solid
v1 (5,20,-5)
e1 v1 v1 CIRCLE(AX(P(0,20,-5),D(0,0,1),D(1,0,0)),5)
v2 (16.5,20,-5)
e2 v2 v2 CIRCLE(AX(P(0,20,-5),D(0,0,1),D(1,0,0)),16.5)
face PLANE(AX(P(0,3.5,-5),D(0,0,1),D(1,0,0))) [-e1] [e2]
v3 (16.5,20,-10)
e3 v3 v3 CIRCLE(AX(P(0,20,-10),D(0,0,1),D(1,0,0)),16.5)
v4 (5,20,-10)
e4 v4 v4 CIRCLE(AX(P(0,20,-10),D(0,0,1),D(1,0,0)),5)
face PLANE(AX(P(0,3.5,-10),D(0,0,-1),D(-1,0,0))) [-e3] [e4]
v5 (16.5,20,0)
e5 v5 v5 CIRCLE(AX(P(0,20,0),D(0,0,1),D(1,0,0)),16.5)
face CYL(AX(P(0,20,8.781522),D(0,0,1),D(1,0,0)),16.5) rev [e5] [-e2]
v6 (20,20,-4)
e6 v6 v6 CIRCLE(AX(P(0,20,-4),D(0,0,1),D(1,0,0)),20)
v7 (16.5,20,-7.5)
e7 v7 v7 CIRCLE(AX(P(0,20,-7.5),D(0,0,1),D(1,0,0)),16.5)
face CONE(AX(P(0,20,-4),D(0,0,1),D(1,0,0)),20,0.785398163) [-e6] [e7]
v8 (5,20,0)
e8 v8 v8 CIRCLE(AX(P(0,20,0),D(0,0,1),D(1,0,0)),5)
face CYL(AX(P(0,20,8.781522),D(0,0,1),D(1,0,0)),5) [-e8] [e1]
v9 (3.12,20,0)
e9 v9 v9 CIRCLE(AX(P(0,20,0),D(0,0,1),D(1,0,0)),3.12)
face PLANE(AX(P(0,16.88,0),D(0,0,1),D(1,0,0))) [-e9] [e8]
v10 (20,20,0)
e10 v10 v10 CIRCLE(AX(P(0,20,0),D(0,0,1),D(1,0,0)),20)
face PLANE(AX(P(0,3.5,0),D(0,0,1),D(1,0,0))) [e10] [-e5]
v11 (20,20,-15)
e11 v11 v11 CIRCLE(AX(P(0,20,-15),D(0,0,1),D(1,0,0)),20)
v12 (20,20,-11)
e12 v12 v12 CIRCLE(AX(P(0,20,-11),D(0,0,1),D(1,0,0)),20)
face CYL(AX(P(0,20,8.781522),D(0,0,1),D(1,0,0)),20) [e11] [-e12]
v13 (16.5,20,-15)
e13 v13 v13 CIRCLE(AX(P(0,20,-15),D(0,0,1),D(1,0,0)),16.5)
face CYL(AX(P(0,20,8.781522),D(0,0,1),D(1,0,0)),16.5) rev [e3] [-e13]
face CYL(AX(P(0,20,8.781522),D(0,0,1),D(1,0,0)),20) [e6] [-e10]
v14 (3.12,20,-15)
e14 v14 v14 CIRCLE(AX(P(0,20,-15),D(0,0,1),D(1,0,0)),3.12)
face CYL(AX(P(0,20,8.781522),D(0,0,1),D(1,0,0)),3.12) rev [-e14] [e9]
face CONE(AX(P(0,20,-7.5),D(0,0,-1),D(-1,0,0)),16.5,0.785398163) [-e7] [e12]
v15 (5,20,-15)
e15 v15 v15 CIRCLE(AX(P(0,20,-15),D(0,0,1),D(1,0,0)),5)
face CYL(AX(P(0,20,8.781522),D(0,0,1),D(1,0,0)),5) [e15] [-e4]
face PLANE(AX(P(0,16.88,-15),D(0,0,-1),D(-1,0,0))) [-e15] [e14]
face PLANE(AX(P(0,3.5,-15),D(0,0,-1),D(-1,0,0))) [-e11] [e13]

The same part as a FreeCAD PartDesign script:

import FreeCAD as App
import Part
import Sketcher

V = App.Vector

doc = App.newDocument("Part")
params = doc.addObject("Spreadsheet::Sheet", "Params")
for row, (alias, value) in enumerate([
    ("sketch1_height", "4 mm"),
    ("sketch1_height2", "5 mm"),
    ("sketch1_height3", "15 mm"),
    ("sketch1_width", "11.5 mm"),
    ("sketch1_width2", "1.88 mm"),
    ("revolution_angle", "360 deg"),
], start=1):
    params.set(f"A{row}", alias)
    params.set(f"B{row}", "=" + value)
    params.setAlias(f"B{row}", alias)

body = doc.addObject("PartDesign::Body", "Body")

sketch1 = body.newObject("Sketcher::SketchObject", "Sketch")
sketch1.AttachmentSupport = (doc.getObject("YZ_Plane"), [""])
sketch1.MapMode = "FlatFace"
sketch1.addGeometry(Part.LineSegment(V(0, 0, 0), V(0, -4, 0)), False)
sketch1.addGeometry(Part.LineSegment(V(0, -4, 0), V(3.5, -7.5, 0)), False)
sketch1.addGeometry(Part.LineSegment(V(3.5, -7.5, 0), V(0, -11, 0)), False)
sketch1.addGeometry(Part.LineSegment(V(0, -11, 0), V(0, -15, 0)), False)
sketch1.addGeometry(Part.LineSegment(V(0, -15, 0), V(3.5, -15, 0)), False)
sketch1.addGeometry(Part.LineSegment(V(3.5, -15, 0), V(3.5, -10, 0)), False)
sketch1.addGeometry(Part.LineSegment(V(3.5, -10, 0), V(15, -10, 0)), False)
sketch1.addGeometry(Part.LineSegment(V(15, -10, 0), V(15, -15, 0)), False)
sketch1.addGeometry(Part.LineSegment(V(15, -15, 0), V(16.9, -15, 0)), False)
sketch1.addGeometry(Part.LineSegment(V(16.9, -15, 0), V(16.9, 0, 0)), False)
sketch1.addGeometry(Part.LineSegment(V(16.9, 0, 0), V(15, 0, 0)), False)
sketch1.addGeometry(Part.LineSegment(V(15, 0, 0), V(15, -5, 0)), False)
sketch1.addGeometry(Part.LineSegment(V(15, -5, 0), V(3.5, -5, 0)), False)
sketch1.addGeometry(Part.LineSegment(V(3.5, -5, 0), V(3.5, 0, 0)), False)
sketch1.addGeometry(Part.LineSegment(V(3.5, 0, 0), V(0, 0, 0)), False)
sketch1.addGeometry(Part.LineSegment(V(20, 0, 0), V(20, -15, 0)), True)
sketch1.addConstraint(Sketcher.Constraint("Coincident", 0, 2, 1, 1))
sketch1.addConstraint(Sketcher.Constraint("Coincident", 1, 2, 2, 1))
sketch1.addConstraint(Sketcher.Constraint("Coincident", 2, 2, 3, 1))
sketch1.addConstraint(Sketcher.Constraint("Coincident", 3, 2, 4, 1))
sketch1.addConstraint(Sketcher.Constraint("Coincident", 4, 2, 5, 1))
sketch1.addConstraint(Sketcher.Constraint("Coincident", 5, 2, 6, 1))
sketch1.addConstraint(Sketcher.Constraint("Coincident", 6, 2, 7, 1))
sketch1.addConstraint(Sketcher.Constraint("Coincident", 7, 2, 8, 1))
sketch1.addConstraint(Sketcher.Constraint("Coincident", 8, 2, 9, 1))
sketch1.addConstraint(Sketcher.Constraint("Coincident", 9, 2, 10, 1))
sketch1.addConstraint(Sketcher.Constraint("Coincident", 10, 2, 11, 1))
sketch1.addConstraint(Sketcher.Constraint("Coincident", 11, 2, 12, 1))
sketch1.addConstraint(Sketcher.Constraint("Coincident", 12, 2, 13, 1))
sketch1.addConstraint(Sketcher.Constraint("Coincident", 13, 2, 14, 1))
sketch1.addConstraint(Sketcher.Constraint("Coincident", 14, 2, 0, 1))
sketch1.addConstraint(Sketcher.Constraint("Vertical", 0))
sketch1.addConstraint(Sketcher.Constraint("Vertical", 3))
sketch1.addConstraint(Sketcher.Constraint("Horizontal", 4))
sketch1.addConstraint(Sketcher.Constraint("Vertical", 5))
sketch1.addConstraint(Sketcher.Constraint("Horizontal", 6))
sketch1.addConstraint(Sketcher.Constraint("Vertical", 7))
sketch1.addConstraint(Sketcher.Constraint("Horizontal", 8))
sketch1.addConstraint(Sketcher.Constraint("Vertical", 9))
sketch1.addConstraint(Sketcher.Constraint("Horizontal", 10))
sketch1.addConstraint(Sketcher.Constraint("Vertical", 11))
sketch1.addConstraint(Sketcher.Constraint("Horizontal", 12))
sketch1.addConstraint(Sketcher.Constraint("Vertical", 13))
sketch1.addConstraint(Sketcher.Constraint("Horizontal", 14))
sketch1.addConstraint(Sketcher.Constraint("Vertical", 15))
sketch1.addConstraint(Sketcher.Constraint("Coincident", 14, 2, -1, 1))
sketch1.addConstraint(Sketcher.Constraint("PointOnObject", 2, 2, -2))
sketch1.addConstraint(Sketcher.Constraint("PointOnObject", 9, 2, -1))
sketch1.addConstraint(Sketcher.Constraint("PointOnObject", 15, 1, -1))
sketch1.addConstraint(Sketcher.Constraint("Perpendicular", 1, 2))
sketch1.addConstraint(Sketcher.Constraint("Horizontal", 4, 2, 7, 2))
sketch1.addConstraint(Sketcher.Constraint("Horizontal", 8, 2, 15, 2))
sketch1.addConstraint(Sketcher.Constraint("Vertical", 1, 2, 4, 2))
sketch1.addConstraint(Sketcher.Constraint("Vertical", 7, 2, 10, 2))
sketch1.addConstraint(Sketcher.Constraint("Vertical", 5, 2, 12, 2))
sketch1.addConstraint(Sketcher.Constraint("Equal", 0, 3))
sketch1.addConstraint(Sketcher.Constraint("Equal", 7, 11))
sketch1.addConstraint(Sketcher.Constraint("Equal", 1, 2))
sketch1.addConstraint(Sketcher.Constraint("DistanceY", 0, 2, 0, 1, 4.0))
sketch1.addConstraint(Sketcher.Constraint("DistanceY", 5, 1, 5, 2, 5.0))
sketch1.addConstraint(Sketcher.Constraint("DistanceY", 9, 1, 9, 2, 15.0))
sketch1.addConstraint(Sketcher.Constraint("DistanceX", 6, 1, 6, 2, 11.5))
sketch1.addConstraint(Sketcher.Constraint("DistanceX", -1, 1, 15, 1, 20.0))
sketch1.addConstraint(Sketcher.Constraint("DistanceX", 8, 1, 8, 2, 1.88))
sketch1.setExpression("Constraints[42]", "Params.sketch1_height")
sketch1.setExpression("Constraints[43]", "Params.sketch1_height2")
sketch1.setExpression("Constraints[44]", "Params.sketch1_height3")
sketch1.setExpression("Constraints[45]", "Params.sketch1_width")
sketch1.setExpression("Constraints[47]", "Params.sketch1_width2")
revolution = body.newObject("PartDesign::Revolution", "Revolution")
revolution.Profile = sketch1
revolution.ReferenceAxis = (sketch1, ["Axis0"])
revolution.setExpression("Angle", "Params.revolution_angle")

doc.recompute()
